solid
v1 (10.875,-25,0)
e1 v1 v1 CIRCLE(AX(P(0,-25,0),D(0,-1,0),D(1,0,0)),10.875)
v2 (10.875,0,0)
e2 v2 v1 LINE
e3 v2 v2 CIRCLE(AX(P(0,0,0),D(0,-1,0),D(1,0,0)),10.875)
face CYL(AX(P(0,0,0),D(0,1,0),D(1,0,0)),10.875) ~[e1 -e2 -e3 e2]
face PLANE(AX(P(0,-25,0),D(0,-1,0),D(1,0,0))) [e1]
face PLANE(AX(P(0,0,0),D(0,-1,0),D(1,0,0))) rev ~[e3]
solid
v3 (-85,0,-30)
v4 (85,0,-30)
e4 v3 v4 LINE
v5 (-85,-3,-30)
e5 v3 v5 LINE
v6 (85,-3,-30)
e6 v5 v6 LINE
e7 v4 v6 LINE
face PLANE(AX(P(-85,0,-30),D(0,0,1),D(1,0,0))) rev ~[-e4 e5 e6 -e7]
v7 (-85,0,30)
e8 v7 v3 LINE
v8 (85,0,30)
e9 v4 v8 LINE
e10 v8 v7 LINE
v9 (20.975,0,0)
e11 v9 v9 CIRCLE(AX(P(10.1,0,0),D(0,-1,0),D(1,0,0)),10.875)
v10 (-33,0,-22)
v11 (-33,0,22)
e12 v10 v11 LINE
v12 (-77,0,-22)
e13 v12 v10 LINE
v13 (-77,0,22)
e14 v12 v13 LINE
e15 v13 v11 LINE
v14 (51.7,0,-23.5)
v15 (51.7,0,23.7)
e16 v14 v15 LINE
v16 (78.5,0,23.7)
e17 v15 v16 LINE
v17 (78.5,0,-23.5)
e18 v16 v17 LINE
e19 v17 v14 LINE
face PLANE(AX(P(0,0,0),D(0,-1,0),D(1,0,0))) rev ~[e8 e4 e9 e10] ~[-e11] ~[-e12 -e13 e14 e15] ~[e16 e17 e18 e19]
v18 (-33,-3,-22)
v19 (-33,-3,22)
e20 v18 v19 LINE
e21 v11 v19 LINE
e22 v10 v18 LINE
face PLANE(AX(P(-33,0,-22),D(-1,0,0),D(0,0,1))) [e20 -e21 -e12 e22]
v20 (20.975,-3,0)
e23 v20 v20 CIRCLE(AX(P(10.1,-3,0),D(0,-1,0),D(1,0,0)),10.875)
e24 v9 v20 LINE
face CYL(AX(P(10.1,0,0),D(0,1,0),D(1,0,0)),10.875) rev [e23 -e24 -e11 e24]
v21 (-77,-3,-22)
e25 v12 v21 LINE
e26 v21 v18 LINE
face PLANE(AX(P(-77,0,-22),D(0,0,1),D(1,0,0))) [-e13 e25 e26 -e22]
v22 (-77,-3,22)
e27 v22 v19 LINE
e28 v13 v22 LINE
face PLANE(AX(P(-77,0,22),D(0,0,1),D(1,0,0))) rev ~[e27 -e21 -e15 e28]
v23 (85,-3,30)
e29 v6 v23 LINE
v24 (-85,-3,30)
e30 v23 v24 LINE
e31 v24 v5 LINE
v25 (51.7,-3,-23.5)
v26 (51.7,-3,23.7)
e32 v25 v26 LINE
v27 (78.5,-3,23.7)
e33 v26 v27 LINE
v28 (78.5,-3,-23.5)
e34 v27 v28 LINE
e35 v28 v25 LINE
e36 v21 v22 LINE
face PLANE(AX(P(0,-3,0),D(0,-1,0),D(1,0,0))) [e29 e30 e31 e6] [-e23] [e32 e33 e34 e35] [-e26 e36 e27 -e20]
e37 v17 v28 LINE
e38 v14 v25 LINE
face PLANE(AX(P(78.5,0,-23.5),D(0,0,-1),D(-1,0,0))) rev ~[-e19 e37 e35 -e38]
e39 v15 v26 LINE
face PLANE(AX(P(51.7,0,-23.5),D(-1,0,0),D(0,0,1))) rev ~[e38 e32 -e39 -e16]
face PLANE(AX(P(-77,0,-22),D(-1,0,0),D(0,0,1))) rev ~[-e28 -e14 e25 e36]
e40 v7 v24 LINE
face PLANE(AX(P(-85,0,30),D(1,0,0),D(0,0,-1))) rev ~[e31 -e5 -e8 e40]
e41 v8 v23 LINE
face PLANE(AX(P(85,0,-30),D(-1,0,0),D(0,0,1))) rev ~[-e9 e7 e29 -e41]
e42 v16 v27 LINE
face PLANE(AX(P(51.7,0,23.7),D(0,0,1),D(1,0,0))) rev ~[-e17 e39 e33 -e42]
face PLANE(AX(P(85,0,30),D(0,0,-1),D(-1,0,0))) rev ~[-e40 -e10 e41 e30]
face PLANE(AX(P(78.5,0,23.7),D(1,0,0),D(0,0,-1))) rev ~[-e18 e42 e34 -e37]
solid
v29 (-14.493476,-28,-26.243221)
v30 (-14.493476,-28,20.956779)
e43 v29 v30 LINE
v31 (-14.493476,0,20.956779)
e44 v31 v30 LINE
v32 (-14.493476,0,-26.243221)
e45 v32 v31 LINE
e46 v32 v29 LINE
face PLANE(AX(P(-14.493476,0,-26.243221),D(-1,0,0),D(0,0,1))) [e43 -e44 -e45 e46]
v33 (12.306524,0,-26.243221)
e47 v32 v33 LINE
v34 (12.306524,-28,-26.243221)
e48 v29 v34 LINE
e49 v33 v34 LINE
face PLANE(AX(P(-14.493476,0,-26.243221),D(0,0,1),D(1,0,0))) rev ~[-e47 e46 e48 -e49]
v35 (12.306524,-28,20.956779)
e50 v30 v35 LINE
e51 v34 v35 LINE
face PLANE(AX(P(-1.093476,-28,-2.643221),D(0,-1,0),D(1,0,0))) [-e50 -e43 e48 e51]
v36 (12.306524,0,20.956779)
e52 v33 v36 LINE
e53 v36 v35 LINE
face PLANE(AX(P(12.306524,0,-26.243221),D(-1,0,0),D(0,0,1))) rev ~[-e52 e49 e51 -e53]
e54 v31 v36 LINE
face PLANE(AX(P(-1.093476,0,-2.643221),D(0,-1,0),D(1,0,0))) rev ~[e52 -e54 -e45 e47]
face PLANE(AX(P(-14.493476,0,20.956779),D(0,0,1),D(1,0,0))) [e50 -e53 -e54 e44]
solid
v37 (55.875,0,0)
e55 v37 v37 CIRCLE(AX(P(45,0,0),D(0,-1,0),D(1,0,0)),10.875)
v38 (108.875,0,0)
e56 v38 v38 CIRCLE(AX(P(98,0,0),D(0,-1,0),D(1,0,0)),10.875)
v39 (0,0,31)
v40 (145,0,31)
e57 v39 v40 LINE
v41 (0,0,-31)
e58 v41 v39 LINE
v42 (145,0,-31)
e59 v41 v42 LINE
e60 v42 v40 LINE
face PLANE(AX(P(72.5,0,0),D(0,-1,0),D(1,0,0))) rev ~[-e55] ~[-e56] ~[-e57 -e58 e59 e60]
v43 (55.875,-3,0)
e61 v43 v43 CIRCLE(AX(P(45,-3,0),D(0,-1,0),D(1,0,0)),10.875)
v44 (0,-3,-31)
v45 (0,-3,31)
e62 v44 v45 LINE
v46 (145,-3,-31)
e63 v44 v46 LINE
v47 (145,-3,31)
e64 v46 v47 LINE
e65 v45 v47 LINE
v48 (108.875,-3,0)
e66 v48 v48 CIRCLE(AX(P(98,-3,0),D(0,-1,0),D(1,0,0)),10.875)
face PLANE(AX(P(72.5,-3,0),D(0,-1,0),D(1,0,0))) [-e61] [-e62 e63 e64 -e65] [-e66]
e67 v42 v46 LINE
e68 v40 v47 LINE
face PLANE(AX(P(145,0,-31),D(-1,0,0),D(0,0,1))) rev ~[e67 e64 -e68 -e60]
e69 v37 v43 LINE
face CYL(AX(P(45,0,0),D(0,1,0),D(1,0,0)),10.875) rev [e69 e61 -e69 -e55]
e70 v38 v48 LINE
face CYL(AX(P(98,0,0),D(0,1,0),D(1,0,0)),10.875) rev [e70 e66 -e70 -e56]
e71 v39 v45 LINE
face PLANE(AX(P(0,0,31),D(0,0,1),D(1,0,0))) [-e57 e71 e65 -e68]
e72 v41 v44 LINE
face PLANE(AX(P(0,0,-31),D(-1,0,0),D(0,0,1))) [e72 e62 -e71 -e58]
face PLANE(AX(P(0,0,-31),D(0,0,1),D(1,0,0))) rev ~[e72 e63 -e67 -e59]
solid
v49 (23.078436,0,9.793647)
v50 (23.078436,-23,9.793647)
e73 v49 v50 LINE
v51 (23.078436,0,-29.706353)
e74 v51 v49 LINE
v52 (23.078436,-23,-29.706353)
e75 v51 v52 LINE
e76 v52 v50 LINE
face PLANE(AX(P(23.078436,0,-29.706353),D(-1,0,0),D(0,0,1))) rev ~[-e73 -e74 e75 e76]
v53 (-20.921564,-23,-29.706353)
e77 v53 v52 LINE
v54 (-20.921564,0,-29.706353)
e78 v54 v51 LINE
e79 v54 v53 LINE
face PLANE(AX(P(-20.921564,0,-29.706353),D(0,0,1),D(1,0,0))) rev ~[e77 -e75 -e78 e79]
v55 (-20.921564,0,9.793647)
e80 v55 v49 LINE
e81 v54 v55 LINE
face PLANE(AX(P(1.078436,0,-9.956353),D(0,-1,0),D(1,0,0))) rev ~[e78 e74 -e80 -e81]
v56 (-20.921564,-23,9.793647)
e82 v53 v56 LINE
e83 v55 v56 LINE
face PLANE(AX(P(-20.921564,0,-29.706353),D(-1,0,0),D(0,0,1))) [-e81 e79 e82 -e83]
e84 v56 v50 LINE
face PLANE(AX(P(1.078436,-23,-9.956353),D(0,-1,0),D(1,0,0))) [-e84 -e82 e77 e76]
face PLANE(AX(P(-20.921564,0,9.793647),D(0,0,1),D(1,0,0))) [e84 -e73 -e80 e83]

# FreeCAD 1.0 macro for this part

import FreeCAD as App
import Part
import Sketcher

V = App.Vector
Q = App.Units.Quantity


def add_polygon(sketch, points):
    """Adds a closed chain of lines whose ends are joined by coincident constraints."""
    first, n = sketch.GeometryCount, len(points)
    for a, b in zip(points, points[1:] + points[:1]):
        sketch.addGeometry(Part.LineSegment(App.Vector(*a, 0), App.Vector(*b, 0)), False)
    for i in range(n):
        sketch.addConstraint(Sketcher.Constraint("Coincident", first + i, 2, first + (i + 1) % n, 1))

doc = App.newDocument("Part")
params = doc.addObject("Spreadsheet::Sheet", "Params")
for row, (alias, value) in enumerate([
    ("sketch1_width", "26.8 mm"),
    ("sketch1_height", "47.2 mm"),
    ("pad1_length", "28 mm"),
    ("sketch2_width", "44 mm"),
    ("sketch2_height", "39.5 mm"),
    ("pad2_length", "23 mm"),
    ("sketch3_diameter", "21.75 mm"),
    ("pad3_length", "25 mm"),
    ("sketch4_diameter", "21.75 mm"),
    ("sketch4_width", "145 mm"),
    ("sketch4_height", "62 mm"),
    ("pad4_length", "3 mm"),
    ("sketch5_diameter", "21.75 mm"),
    ("sketch5_width", "170 mm"),
    ("sketch5_width2", "44 mm"),
    ("sketch5_height", "60 mm"),
    ("sketch5_width3", "26.8 mm"),
    ("pad5_length", "3 mm"),
], start=1):
    params.set(f"A{row}", alias)
    params.set(f"B{row}", "=" + value)
    params.setAlias(f"B{row}", alias)

body = doc.addObject("PartDesign::Body", "Body")

# Sketch on XZ plane
sketch1 = doc.addObject("Sketcher::SketchObject", "Sketch")
body.addObject(sketch1)
sketch1.AttachmentSupport = (doc.XZ_Plane, [""])
sketch1.MapMode = "FlatFace"
add_polygon(sketch1, [(-14, 21), (-14, -26), (12, -26), (12, 21)])  # lines 0-3
sketch1.addConstraint(Sketcher.Constraint("Vertical", 0))
sketch1.addConstraint(Sketcher.Constraint("Horizontal", 1))
sketch1.addConstraint(Sketcher.Constraint("Vertical", 2))
sketch1.addConstraint(Sketcher.Constraint("Horizontal", 3))
sketch1.addConstraint(Sketcher.Constraint("DistanceX", 1, 1, 1, 2, Q("26.8 mm")))
sketch1.addConstraint(Sketcher.Constraint("DistanceY", 0, 2, 0, 1, Q("47.2 mm")))
sketch1.addConstraint(Sketcher.Constraint("DistanceY", 0, 2, -1, 1, Q("26.243221 mm")))
sketch1.addConstraint(Sketcher.Constraint("DistanceX", 0, 2, -1, 1, Q("14.493476 mm")))
sketch1.setExpression("Constraints[8]", "Params.sketch1_width")
sketch1.setExpression("Constraints[9]", "Params.sketch1_height")
pad1 = doc.addObject("PartDesign::Pad", "Pad")
body.addObject(pad1)
pad1.Profile = sketch1
pad1.setExpression("Length", "Params.pad1_length")
body2 = doc.addObject("PartDesign::Body", "Body001")

# Sketch on XZ plane
sketch2 = doc.addObject("Sketcher::SketchObject", "Sketch001")
body2.addObject(sketch2)
sketch2.AttachmentSupport = (doc.getObject("XZ_Plane001"), [""])
sketch2.MapMode = "FlatFace"
add_polygon(sketch2, [(-21, 10), (-21, -30), (23, -30), (23, 10)])  # lines 0-3
sketch2.addConstraint(Sketcher.Constraint("Vertical", 0))
sketch2.addConstraint(Sketcher.Constraint("Horizontal", 1))
sketch2.addConstraint(Sketcher.Constraint("Vertical", 2))
sketch2.addConstraint(Sketcher.Constraint("Horizontal", 3))
sketch2.addConstraint(Sketcher.Constraint("DistanceX", 1, 1, 1, 2, Q("44 mm")))
sketch2.addConstraint(Sketcher.Constraint("DistanceY", 0, 2, 0, 1, Q("39.5 mm")))
sketch2.addConstraint(Sketcher.Constraint("DistanceX", 0, 2, -1, 1, Q("20.921564 mm")))
sketch2.addConstraint(Sketcher.Constraint("DistanceY", 0, 2, -1, 1, Q("29.706353 mm")))
sketch2.setExpression("Constraints[8]", "Params.sketch2_width")
sketch2.setExpression("Constraints[9]", "Params.sketch2_height")
pad2 = doc.addObject("PartDesign::Pad", "Pad001")
body2.addObject(pad2)
pad2.Profile = sketch2
pad2.setExpression("Length", "Params.pad2_length")
body3 = doc.addObject("PartDesign::Body", "Body002")

# Sketch on XZ plane
sketch3 = doc.addObject("Sketcher::SketchObject", "Sketch002")
body3.addObject(sketch3)
sketch3.AttachmentSupport = (doc.getObject("XZ_Plane002"), [""])
sketch3.MapMode = "FlatFace"
sketch3.addGeometry(Part.Circle(V(0, 0, 0), V(0, 0, 1), 11), False)
sketch3.addConstraint(Sketcher.Constraint("Coincident", 0, 3, -1, 1))
sketch3.addConstraint(Sketcher.Constraint("Diameter", 0, Q("21.75 mm")))
sketch3.setExpression("Constraints[1]", "Params.sketch3_diameter")
pad3 = doc.addObject("PartDesign::Pad", "Pad002")
body3.addObject(pad3)
pad3.Profile = sketch3
pad3.setExpression("Length", "Params.pad3_length")
body4 = doc.addObject("PartDesign::Body", "Body003")

# Sketch on XZ plane
sketch4 = doc.addObject("Sketcher::SketchObject", "Sketch003")
body4.addObject(sketch4)
sketch4.AttachmentSupport = (doc.getObject("XZ_Plane003"), [""])
sketch4.MapMode = "FlatFace"
add_polygon(sketch4, [(0, 31), (0, -31), (145, -31), (145, 31)])  # lines 0-3
sketch4.addGeometry(Part.Circle(V(45, 0, 0), V(0, 0, 1), 11), False)  # 4
sketch4.addGeometry(Part.Circle(V(98, 0, 0), V(0, 0, 1), 11), False)  # 5
sketch4.addConstraint(Sketcher.Constraint("Vertical", 0))
sketch4.addConstraint(Sketcher.Constraint("Horizontal", 1))
sketch4.addConstraint(Sketcher.Constraint("Vertical", 2))
sketch4.addConstraint(Sketcher.Constraint("Horizontal", 3))
sketch4.addConstraint(Sketcher.Constraint("Equal", 4, 5))
sketch4.addConstraint(Sketcher.Constraint("Symmetric", 0, 2, 3, 2, -1, 1))
sketch4.addConstraint(Sketcher.Constraint("PointOnObject", 4, 3, -1))
sketch4.addConstraint(Sketcher.Constraint("PointOnObject", 5, 3, -1))
sketch4.addConstraint(Sketcher.Constraint("Diameter", 4, Q("21.75 mm")))
sketch4.addConstraint(Sketcher.Constraint("DistanceX", 1, 1, 1, 2, Q("145 mm")))
sketch4.addConstraint(Sketcher.Constraint("DistanceY", 0, 2, 0, 1, Q("62 mm")))
sketch4.addConstraint(Sketcher.Constraint("DistanceX", -1, 1, 4, 3, Q("45 mm")))
sketch4.addConstraint(Sketcher.Constraint("DistanceX", -1, 1, 5, 3, Q("98 mm")))
sketch4.setExpression("Constraints[12]", "Params.sketch4_diameter")
sketch4.setExpression("Constraints[13]", "Params.sketch4_width")
sketch4.setExpression("Constraints[14]", "Params.sketch4_height")
pad4 = doc.addObject("PartDesign::Pad", "Pad003")
body4.addObject(pad4)
pad4.Profile = sketch4
pad4.setExpression("Length", "Params.pad4_length")
body5 = doc.addObject("PartDesign::Body", "Body004")

# Sketch on XZ plane
sketch5 = doc.addObject("Sketcher::SketchObject", "Sketch004")
body5.addObject(sketch5)
sketch5.AttachmentSupport = (doc.getObject("XZ_Plane004"), [""])
sketch5.MapMode = "FlatFace"
add_polygon(sketch5, [(-85, 30), (-85, -30), (85, -30), (85, 30)])  # lines 0-3
add_polygon(sketch5, [(-33, -22), (-77, -22), (-77, 22), (-33, 22)])  # lines 4-7
sketch5.addGeometry(Part.Circle(V(10, 0, 0), V(0, 0, 1), 11), False)  # 8
add_polygon(sketch5, [(52, -24), (52, 24), (78, 24), (78, -24)])  # lines 9-12
sketch5.addConstraint(Sketcher.Constraint("Vertical", 0))
sketch5.addConstraint(Sketcher.Constraint("Horizontal", 1))
sketch5.addConstraint(Sketcher.Constraint("Vertical", 2))
sketch5.addConstraint(Sketcher.Constraint("Horizontal", 3))
sketch5.addConstraint(Sketcher.Constraint("Horizontal", 4))
sketch5.addConstraint(Sketcher.Constraint("Vertical", 5))
sketch5.addConstraint(Sketcher.Constraint("Horizontal", 6))
sketch5.addConstraint(Sketcher.Constraint("Vertical", 7))
sketch5.addConstraint(Sketcher.Constraint("Vertical", 9))
sketch5.addConstraint(Sketcher.Constraint("Horizontal", 10))
sketch5.addConstraint(Sketcher.Constraint("Vertical", 11))
sketch5.addConstraint(Sketcher.Constraint("Horizontal", 12))
sketch5.addConstraint(Sketcher.Constraint("Symmetric", 0, 2, 2, 2, -1, 1))
sketch5.addConstraint(Sketcher.Constraint("PointOnObject", 8, 3, -1))
sketch5.addConstraint(Sketcher.Constraint("Equal", 6, 5))
sketch5.addConstraint(Sketcher.Constraint("Diameter", 8, Q("21.75 mm")))
sketch5.addConstraint(Sketcher.Constraint("DistanceX", 1, 1, 1, 2, Q("170 mm")))
sketch5.addConstraint(Sketcher.Constraint("DistanceX", 4, 2, 4, 1, Q("44 mm")))
sketch5.addConstraint(Sketcher.Constraint("DistanceY", 0, 2, 0, 1, Q("60 mm")))
sketch5.addConstraint(Sketcher.Constraint("DistanceX", 10, 1, 10, 2, Q("26.8 mm")))
sketch5.addConstraint(Sketcher.Constraint("DistanceY", 9, 1, 9, 2, Q("47.2 mm")))
sketch5.addConstraint(Sketcher.Constraint("DistanceX", 4, 2, -1, 1, Q("77 mm")))
sketch5.addConstraint(Sketcher.Constraint("DistanceY", 4, 2, -1, 1, Q("22 mm")))
sketch5.addConstraint(Sketcher.Constraint("DistanceX", -1, 1, 8, 3, Q("10.1 mm")))
sketch5.addConstraint(Sketcher.Constraint("DistanceX", -1, 1, 9, 2, Q("51.7 mm")))
sketch5.addConstraint(Sketcher.Constraint("DistanceY", -1, 1, 9, 2, Q("23.7 mm")))
sketch5.setExpression("Constraints[27]", "Params.sketch5_diameter")
sketch5.setExpression("Constraints[28]", "Params.sketch5_width")
sketch5.setExpression("Constraints[29]", "Params.sketch5_width2")
sketch5.setExpression("Constraints[30]", "Params.sketch5_height")
sketch5.setExpression("Constraints[31]", "Params.sketch5_width3")
pad5 = doc.addObject("PartDesign::Pad", "Pad004")
body5.addObject(pad5)
pad5.Profile = sketch5
pad5.setExpression("Length", "Params.pad5_length")

doc.recompute()
